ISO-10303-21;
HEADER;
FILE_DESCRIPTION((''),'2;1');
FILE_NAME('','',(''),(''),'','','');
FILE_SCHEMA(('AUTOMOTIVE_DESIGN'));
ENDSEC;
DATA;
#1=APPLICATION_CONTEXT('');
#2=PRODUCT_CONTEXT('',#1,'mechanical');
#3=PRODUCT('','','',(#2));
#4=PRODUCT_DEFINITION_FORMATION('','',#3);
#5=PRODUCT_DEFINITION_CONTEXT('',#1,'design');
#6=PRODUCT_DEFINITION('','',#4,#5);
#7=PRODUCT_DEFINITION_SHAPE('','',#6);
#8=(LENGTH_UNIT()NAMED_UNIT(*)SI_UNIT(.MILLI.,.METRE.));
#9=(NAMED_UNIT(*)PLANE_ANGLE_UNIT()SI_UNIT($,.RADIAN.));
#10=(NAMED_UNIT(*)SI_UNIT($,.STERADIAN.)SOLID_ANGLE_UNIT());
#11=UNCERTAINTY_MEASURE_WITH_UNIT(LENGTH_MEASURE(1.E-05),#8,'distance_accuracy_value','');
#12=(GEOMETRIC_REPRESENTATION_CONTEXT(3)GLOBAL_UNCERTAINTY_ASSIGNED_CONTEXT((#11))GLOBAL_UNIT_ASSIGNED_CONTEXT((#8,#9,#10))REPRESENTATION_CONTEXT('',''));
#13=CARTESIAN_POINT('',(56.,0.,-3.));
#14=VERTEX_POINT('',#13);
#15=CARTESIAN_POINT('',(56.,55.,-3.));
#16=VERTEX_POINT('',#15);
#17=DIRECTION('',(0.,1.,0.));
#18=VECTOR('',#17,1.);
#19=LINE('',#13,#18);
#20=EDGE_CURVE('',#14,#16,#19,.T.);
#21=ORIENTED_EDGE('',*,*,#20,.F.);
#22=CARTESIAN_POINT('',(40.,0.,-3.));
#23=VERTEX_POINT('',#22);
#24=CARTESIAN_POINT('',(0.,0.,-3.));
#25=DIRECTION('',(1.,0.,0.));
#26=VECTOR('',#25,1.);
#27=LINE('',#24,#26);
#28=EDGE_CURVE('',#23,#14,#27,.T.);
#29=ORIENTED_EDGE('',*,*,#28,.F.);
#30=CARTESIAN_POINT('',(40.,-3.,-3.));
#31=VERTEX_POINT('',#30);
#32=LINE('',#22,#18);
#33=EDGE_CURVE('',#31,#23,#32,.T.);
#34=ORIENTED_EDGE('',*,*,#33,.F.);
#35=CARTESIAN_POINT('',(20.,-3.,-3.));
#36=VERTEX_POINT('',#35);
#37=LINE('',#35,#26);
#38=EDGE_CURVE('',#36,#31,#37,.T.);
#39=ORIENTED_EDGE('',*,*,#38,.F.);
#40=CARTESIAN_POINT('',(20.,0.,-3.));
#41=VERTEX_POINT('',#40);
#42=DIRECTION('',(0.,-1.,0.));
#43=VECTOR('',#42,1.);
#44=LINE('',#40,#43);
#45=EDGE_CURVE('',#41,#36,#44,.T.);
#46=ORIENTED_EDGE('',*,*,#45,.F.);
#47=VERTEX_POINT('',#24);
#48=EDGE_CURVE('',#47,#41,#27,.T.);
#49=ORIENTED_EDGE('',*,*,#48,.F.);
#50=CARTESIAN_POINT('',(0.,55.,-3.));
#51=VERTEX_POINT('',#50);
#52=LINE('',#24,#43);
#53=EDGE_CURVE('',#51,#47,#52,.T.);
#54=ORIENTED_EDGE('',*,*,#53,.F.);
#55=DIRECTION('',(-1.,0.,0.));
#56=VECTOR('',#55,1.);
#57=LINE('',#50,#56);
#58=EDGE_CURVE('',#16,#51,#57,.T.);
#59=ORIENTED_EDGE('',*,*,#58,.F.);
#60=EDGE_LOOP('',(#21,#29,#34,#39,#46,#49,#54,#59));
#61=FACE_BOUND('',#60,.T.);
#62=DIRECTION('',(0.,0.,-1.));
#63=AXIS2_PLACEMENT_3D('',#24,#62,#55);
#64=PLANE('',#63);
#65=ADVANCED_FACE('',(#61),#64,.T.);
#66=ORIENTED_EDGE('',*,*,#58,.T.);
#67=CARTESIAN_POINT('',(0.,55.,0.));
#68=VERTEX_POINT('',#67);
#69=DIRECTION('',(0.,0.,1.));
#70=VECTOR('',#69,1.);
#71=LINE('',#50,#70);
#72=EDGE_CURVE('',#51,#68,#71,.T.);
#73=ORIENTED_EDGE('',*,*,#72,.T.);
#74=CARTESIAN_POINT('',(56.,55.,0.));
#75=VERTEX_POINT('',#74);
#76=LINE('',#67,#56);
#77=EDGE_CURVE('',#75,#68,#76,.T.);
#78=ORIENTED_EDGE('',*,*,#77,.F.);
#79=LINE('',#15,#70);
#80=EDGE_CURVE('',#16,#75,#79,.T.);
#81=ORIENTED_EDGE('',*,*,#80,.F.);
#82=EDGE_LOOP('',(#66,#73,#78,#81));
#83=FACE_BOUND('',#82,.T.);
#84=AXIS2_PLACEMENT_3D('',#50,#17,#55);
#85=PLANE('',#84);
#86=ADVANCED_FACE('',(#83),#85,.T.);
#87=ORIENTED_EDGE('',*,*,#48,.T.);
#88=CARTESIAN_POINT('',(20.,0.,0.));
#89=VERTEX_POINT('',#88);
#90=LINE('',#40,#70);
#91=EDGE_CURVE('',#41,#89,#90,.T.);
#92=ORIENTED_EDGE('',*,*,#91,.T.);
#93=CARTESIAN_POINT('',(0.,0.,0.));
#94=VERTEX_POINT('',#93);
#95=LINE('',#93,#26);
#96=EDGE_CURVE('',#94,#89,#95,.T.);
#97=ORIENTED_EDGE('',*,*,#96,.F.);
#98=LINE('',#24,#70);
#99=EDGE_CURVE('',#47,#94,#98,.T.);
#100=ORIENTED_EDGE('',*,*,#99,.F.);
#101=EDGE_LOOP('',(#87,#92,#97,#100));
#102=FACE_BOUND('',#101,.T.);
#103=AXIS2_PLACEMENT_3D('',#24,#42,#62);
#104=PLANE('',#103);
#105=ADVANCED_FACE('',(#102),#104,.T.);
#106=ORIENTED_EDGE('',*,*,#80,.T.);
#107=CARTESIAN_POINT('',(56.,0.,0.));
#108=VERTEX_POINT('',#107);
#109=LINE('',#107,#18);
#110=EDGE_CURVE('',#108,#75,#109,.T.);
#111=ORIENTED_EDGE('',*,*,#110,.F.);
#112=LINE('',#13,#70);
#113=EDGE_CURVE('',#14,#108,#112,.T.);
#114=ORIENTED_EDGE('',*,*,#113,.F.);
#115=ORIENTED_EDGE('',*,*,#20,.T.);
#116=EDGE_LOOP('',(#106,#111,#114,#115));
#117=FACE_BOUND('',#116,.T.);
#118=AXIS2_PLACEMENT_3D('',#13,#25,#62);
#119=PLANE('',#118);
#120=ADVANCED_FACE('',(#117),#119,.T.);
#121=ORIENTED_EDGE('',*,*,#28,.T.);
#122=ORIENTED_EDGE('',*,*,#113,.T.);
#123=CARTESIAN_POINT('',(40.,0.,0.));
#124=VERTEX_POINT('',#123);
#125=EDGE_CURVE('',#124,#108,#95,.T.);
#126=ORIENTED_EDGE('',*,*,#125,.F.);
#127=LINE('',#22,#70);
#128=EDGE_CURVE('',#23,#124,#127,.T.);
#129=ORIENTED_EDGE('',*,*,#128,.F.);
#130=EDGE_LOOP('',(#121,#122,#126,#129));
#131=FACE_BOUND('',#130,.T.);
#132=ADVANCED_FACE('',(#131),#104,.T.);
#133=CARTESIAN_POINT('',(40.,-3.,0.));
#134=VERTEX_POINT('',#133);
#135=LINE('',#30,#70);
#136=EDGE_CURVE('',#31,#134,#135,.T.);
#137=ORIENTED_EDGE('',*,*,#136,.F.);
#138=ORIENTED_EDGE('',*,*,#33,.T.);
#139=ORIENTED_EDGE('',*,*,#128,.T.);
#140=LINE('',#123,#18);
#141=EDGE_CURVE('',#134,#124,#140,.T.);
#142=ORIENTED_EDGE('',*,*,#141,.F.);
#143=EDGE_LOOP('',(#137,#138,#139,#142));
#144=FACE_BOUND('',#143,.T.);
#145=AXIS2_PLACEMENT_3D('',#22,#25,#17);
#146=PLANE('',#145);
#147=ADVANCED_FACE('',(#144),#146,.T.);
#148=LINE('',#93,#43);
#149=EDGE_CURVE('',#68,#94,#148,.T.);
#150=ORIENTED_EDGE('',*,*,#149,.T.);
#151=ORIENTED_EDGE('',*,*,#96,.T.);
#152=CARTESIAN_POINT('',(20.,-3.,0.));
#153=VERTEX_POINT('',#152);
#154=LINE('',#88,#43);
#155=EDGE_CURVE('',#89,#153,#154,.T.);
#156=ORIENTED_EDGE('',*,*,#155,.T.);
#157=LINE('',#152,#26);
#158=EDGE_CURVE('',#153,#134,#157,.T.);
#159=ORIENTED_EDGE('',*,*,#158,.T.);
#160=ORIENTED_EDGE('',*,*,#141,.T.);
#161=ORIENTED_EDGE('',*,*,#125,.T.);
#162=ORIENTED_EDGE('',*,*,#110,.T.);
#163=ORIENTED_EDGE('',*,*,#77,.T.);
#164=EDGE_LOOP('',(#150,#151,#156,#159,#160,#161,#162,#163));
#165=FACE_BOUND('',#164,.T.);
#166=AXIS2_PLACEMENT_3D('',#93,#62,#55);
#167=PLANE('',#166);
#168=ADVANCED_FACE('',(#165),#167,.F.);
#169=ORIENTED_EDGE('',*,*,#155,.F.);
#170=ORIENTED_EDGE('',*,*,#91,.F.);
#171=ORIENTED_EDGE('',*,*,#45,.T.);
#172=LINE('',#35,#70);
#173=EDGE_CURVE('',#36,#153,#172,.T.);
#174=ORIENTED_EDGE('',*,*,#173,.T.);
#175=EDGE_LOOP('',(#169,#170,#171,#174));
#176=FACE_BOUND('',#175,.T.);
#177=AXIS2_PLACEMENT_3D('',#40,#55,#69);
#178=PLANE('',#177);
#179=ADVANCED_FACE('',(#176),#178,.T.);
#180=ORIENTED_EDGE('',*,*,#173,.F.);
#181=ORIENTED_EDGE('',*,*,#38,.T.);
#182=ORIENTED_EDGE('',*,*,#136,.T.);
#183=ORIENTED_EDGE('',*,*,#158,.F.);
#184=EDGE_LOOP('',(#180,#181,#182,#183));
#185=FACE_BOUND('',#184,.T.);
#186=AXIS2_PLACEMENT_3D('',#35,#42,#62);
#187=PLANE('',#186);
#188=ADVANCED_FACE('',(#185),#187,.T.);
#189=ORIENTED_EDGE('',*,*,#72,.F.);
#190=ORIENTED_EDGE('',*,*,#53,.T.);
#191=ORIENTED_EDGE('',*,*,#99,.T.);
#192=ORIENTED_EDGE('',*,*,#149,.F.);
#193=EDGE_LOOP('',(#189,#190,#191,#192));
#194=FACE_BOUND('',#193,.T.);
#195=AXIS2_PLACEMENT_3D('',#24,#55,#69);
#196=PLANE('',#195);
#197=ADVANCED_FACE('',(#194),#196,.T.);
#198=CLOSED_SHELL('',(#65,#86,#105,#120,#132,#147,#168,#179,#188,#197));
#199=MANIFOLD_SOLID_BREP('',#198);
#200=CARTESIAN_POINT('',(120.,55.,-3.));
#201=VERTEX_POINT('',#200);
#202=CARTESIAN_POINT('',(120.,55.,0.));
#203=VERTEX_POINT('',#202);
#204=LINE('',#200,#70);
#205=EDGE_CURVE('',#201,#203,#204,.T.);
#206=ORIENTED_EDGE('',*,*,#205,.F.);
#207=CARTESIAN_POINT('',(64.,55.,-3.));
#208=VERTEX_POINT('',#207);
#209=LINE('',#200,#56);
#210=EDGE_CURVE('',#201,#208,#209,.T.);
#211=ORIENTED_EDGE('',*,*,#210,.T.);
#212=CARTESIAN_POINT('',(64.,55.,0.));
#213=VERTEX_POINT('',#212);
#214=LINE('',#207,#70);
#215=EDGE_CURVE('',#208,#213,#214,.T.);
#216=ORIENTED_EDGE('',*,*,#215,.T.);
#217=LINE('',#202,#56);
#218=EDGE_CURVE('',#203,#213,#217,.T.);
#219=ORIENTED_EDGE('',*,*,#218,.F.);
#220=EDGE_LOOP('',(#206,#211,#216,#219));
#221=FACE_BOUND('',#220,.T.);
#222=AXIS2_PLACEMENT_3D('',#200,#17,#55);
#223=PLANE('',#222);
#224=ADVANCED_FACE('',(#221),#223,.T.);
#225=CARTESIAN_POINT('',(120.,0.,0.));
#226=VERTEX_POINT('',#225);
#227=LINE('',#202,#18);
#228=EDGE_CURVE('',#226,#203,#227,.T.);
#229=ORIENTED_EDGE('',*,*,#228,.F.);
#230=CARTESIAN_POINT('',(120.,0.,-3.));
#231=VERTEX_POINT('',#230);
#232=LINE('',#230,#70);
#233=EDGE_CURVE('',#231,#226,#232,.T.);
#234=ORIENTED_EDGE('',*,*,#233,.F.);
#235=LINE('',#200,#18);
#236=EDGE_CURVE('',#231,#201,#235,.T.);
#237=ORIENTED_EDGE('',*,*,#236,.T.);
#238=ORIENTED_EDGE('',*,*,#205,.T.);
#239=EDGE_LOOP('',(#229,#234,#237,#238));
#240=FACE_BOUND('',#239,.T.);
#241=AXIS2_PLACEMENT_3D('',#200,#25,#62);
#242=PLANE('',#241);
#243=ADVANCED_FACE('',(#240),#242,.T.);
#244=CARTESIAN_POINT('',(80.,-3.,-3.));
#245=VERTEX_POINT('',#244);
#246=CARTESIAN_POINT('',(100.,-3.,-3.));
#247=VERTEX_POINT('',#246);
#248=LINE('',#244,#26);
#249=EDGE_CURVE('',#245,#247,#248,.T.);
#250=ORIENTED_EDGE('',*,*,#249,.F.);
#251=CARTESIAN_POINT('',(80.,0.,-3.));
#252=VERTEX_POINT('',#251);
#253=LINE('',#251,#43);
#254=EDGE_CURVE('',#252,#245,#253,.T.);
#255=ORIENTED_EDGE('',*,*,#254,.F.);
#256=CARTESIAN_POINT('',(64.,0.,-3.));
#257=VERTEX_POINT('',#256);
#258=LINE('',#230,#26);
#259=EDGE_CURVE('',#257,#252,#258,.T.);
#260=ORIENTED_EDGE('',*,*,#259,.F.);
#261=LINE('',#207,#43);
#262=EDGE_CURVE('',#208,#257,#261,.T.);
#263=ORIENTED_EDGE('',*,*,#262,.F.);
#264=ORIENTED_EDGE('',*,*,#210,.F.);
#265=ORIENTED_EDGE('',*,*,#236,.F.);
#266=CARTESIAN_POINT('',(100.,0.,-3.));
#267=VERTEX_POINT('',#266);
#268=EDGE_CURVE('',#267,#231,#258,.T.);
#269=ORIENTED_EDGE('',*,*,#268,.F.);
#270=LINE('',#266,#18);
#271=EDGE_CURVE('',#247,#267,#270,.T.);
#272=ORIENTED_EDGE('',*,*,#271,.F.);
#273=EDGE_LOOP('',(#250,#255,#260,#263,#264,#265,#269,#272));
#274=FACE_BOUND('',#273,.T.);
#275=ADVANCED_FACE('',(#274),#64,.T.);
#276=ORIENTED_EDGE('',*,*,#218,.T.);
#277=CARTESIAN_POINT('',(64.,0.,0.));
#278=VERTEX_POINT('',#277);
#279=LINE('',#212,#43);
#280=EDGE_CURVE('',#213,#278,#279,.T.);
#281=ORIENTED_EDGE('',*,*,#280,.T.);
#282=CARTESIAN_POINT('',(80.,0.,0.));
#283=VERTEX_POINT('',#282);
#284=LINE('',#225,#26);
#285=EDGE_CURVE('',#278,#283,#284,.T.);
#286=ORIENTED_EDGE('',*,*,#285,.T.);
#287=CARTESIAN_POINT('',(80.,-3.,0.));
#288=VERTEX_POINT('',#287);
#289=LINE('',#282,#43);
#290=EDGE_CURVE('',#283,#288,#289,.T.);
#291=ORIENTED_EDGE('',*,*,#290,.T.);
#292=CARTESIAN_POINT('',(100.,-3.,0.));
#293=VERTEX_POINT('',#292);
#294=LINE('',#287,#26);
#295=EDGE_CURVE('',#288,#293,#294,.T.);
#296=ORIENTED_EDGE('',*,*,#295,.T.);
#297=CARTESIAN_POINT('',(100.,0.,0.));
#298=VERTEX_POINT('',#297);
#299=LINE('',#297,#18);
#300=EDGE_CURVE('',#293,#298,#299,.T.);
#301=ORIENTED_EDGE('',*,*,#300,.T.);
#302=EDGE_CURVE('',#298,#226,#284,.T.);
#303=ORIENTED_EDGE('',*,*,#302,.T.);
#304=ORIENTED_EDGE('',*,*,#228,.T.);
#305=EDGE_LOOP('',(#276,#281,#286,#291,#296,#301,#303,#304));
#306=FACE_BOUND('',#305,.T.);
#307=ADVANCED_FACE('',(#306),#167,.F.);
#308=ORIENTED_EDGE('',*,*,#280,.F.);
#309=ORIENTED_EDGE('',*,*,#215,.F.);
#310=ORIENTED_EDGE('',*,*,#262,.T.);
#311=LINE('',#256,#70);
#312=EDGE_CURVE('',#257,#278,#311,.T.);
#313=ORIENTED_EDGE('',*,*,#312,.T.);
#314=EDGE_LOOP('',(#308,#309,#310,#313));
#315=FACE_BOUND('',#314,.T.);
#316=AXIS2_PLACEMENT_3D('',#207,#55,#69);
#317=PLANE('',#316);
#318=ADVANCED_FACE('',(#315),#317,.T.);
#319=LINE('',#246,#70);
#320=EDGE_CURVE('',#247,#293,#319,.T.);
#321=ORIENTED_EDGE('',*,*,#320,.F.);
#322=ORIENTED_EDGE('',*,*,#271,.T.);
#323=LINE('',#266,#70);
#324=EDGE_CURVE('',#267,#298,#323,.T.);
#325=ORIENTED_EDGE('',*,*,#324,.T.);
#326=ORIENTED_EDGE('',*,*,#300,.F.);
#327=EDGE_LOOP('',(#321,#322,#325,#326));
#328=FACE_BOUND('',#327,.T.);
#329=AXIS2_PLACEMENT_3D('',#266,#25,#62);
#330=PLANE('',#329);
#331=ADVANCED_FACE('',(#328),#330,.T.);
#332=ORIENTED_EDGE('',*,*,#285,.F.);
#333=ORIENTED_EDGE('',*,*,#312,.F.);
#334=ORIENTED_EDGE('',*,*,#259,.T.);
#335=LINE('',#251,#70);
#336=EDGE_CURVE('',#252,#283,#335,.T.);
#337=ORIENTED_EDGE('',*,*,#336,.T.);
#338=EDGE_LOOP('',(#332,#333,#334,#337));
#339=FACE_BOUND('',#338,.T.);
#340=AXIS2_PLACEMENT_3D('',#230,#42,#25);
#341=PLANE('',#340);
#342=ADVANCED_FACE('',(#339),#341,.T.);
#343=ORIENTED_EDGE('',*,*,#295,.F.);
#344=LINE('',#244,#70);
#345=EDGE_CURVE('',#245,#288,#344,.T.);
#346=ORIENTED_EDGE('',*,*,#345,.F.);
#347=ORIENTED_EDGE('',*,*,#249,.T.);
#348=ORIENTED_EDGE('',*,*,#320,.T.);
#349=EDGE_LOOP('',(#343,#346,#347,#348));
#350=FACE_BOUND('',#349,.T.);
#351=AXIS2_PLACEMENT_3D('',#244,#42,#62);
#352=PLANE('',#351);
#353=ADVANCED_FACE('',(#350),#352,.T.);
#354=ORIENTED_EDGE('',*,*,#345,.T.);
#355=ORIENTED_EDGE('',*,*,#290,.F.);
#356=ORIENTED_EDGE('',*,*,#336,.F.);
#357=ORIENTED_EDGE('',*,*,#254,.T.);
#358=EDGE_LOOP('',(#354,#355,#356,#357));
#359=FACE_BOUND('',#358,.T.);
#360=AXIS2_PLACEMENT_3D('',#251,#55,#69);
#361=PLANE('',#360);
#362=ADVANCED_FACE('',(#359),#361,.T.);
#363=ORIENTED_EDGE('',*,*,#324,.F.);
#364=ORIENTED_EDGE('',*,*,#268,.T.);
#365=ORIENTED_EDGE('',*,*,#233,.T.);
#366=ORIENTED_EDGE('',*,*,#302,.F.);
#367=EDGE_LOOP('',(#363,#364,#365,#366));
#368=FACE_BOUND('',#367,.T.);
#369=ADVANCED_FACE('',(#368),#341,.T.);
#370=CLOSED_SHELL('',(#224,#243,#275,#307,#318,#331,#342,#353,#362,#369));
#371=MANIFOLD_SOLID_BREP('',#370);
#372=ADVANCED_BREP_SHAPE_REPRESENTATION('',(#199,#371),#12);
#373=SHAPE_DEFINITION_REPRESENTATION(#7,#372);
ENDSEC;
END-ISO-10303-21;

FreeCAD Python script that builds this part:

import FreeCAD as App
import Part
import Sketcher


def add_polygon(sketch, points):
    """Adds a closed chain of lines whose ends are joined by coincident constraints."""
    first, n = sketch.GeometryCount, len(points)
    for a, b in zip(points, points[1:] + points[:1]):
        sketch.addGeometry(Part.LineSegment(App.Vector(*a, 0), App.Vector(*b, 0)), False)
    for i in range(n):
        sketch.addConstraint(Sketcher.Constraint("Coincident", first + i, 2, first + (i + 1) % n, 1))

doc = App.newDocument("Part")
body = doc.addObject("PartDesign::Body", "Body")

sketch1 = doc.addObject("Sketcher::SketchObject", "Sketch")
body.addObject(sketch1)
sketch1.AttachmentSupport = (doc.XY_Plane, [""])
sketch1.MapMode = "FlatFace"
add_polygon(sketch1, [(0, 55), (0, 0), (56, 0), (56, 55)])
sketch1.addConstraint([
    Sketcher.Constraint("Vertical", 0),
    Sketcher.Constraint("Horizontal", 1),
    Sketcher.Constraint("Vertical", 2),
    Sketcher.Constraint("Horizontal", 3),
    Sketcher.Constraint("Coincident", 0, 2, -1, 1),
    Sketcher.Constraint("DistanceX", 1, 1, 1, 2, 56.0),
    Sketcher.Constraint("DistanceY", 0, 2, 0, 1, 55.0),
])
pad1 = doc.addObject("PartDesign::Pad", "Pad")
body.addObject(pad1)
pad1.Profile = sketch1
pad1.Length = 3
pad1.Reversed = True
body2 = doc.addObject("PartDesign::Body", "Body001")

sketch2 = doc.addObject("Sketcher::SketchObject", "Sketch001")
body2.addObject(sketch2)
sketch2.AttachmentSupport = (doc.getObject("XY_Plane001"), [""])
sketch2.MapMode = "FlatFace"
add_polygon(sketch2, [(64, 55), (64, 0), (120, 0), (120, 55)])
sketch2.addConstraint([
    Sketcher.Constraint("Vertical", 0),
    Sketcher.Constraint("Horizontal", 1),
    Sketcher.Constraint("Vertical", 2),
    Sketcher.Constraint("Horizontal", 3),
    Sketcher.Constraint("PointOnObject", 0, 2, -1),
    Sketcher.Constraint("DistanceX", 1, 1, 1, 2, 56.0),
    Sketcher.Constraint("DistanceY", 0, 2, 0, 1, 55.0),
    Sketcher.Constraint("DistanceX", -1, 1, 0, 2, 64.0),
])
pad2 = doc.addObject("PartDesign::Pad", "Pad001")
body2.addObject(pad2)
pad2.Profile = sketch2
pad2.Length = 3
pad2.Reversed = True
body.AllowCompound = True
doc.recompute()

boolean = doc.addObject("PartDesign::Boolean", "Boolean")
body.addObject(boolean)
boolean.Type = "Fuse"
boolean.addObjects([body2])

sketch3 = doc.addObject("Sketcher::SketchObject", "Sketch002")
body.addObject(sketch3)
sketch3.AttachmentSupport = (doc.XY_Plane, [""])
sketch3.MapMode = "FlatFace"
add_polygon(sketch3, [(20, 0), (20, -3), (40, -3), (40, 0)])
add_polygon(sketch3, [(80, 0), (80, -3), (100, -3), (100, 0)])
sketch3.addConstraint([
    Sketcher.Constraint("Vertical", 0),
    Sketcher.Constraint("Horizontal", 1),
    Sketcher.Constraint("Vertical", 2),
    Sketcher.Constraint("Horizontal", 3),
    Sketcher.Constraint("Vertical", 4),
    Sketcher.Constraint("Horizontal", 5),
    Sketcher.Constraint("Vertical", 6),
    Sketcher.Constraint("Horizontal", 7),
    Sketcher.Constraint("PointOnObject", 2, 2, -1),
    Sketcher.Constraint("PointOnObject", 6, 2, -1),
    Sketcher.Constraint("Horizontal", 1, 2, 4, 2),
    Sketcher.Constraint("Equal", 3, 5),
    Sketcher.Constraint("DistanceX", 1, 1, 1, 2, 20.0),
    Sketcher.Constraint("DistanceY", 0, 2, 0, 1, 3.0),
    Sketcher.Constraint("DistanceX", -1, 1, 0, 2, 20.0),
    Sketcher.Constraint("DistanceX", -1, 1, 4, 2, 80.0),
])
pad3 = doc.addObject("PartDesign::Pad", "Pad002")
body.addObject(pad3)
pad3.Profile = sketch3
pad3.Length = 3
pad3.Reversed = True

doc.recompute()
